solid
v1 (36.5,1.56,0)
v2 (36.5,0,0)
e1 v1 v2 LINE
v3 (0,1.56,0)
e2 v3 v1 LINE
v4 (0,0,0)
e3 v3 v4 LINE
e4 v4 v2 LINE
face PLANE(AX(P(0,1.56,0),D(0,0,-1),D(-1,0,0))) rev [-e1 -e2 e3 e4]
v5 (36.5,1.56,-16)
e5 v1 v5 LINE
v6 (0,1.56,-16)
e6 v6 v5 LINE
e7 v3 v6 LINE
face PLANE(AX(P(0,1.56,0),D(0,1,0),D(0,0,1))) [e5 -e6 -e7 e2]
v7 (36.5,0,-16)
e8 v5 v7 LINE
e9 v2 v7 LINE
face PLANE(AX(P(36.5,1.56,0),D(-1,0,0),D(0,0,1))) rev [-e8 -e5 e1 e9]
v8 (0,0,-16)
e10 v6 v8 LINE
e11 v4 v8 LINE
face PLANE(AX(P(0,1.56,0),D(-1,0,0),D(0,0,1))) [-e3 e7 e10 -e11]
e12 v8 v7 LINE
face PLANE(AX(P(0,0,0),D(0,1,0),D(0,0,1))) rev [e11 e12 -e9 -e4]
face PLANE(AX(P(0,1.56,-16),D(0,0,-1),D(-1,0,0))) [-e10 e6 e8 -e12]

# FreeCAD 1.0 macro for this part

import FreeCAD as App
import Part
import Sketcher
Q = App.Units.Quantity


def add_polygon(sketch, points):
    """Adds a closed chain of lines whose ends are joined by coincident constraints."""
    first, n = sketch.GeometryCount, len(points)
    for a, b in zip(points, points[1:] + points[:1]):
        sketch.addGeometry(Part.LineSegment(App.Vector(*a, 0), App.Vector(*b, 0)), False)
    for i in range(n):
        sketch.addConstraint(Sketcher.Constraint("Coincident", first + i, 2, first + (i + 1) % n, 1))

doc = App.newDocument("Part")
body = doc.addObject("PartDesign::Body", "Body")

sketch1 = doc.addObject("Sketcher::SketchObject", "Sketch")
body.addObject(sketch1)
sketch1.AttachmentSupport = (doc.XZ_Plane, [""])
sketch1.MapMode = "FlatFace"
add_polygon(sketch1, [(0, -16), (0, 0), (36, 0), (36, -16)])
sketch1.addConstraint([
    Sketcher.Constraint("Vertical", 0),
    Sketcher.Constraint("Horizontal", 1),
    Sketcher.Constraint("Vertical", 2),
    Sketcher.Constraint("Horizontal", 3),
    Sketcher.Constraint("Coincident", 0, 2, -1, 1),
    Sketcher.Constraint("DistanceY", 0, 1, 0, 2, Q("16 mm")),
    Sketcher.Constraint("DistanceX", 1, 1, 1, 2, Q("36.5 mm")),
])
pad1 = doc.addObject("PartDesign::Pad", "Pad")
body.addObject(pad1)
pad1.Profile = sketch1
pad1.Length = 1.56
pad1.Reversed = True

doc.recompute()
